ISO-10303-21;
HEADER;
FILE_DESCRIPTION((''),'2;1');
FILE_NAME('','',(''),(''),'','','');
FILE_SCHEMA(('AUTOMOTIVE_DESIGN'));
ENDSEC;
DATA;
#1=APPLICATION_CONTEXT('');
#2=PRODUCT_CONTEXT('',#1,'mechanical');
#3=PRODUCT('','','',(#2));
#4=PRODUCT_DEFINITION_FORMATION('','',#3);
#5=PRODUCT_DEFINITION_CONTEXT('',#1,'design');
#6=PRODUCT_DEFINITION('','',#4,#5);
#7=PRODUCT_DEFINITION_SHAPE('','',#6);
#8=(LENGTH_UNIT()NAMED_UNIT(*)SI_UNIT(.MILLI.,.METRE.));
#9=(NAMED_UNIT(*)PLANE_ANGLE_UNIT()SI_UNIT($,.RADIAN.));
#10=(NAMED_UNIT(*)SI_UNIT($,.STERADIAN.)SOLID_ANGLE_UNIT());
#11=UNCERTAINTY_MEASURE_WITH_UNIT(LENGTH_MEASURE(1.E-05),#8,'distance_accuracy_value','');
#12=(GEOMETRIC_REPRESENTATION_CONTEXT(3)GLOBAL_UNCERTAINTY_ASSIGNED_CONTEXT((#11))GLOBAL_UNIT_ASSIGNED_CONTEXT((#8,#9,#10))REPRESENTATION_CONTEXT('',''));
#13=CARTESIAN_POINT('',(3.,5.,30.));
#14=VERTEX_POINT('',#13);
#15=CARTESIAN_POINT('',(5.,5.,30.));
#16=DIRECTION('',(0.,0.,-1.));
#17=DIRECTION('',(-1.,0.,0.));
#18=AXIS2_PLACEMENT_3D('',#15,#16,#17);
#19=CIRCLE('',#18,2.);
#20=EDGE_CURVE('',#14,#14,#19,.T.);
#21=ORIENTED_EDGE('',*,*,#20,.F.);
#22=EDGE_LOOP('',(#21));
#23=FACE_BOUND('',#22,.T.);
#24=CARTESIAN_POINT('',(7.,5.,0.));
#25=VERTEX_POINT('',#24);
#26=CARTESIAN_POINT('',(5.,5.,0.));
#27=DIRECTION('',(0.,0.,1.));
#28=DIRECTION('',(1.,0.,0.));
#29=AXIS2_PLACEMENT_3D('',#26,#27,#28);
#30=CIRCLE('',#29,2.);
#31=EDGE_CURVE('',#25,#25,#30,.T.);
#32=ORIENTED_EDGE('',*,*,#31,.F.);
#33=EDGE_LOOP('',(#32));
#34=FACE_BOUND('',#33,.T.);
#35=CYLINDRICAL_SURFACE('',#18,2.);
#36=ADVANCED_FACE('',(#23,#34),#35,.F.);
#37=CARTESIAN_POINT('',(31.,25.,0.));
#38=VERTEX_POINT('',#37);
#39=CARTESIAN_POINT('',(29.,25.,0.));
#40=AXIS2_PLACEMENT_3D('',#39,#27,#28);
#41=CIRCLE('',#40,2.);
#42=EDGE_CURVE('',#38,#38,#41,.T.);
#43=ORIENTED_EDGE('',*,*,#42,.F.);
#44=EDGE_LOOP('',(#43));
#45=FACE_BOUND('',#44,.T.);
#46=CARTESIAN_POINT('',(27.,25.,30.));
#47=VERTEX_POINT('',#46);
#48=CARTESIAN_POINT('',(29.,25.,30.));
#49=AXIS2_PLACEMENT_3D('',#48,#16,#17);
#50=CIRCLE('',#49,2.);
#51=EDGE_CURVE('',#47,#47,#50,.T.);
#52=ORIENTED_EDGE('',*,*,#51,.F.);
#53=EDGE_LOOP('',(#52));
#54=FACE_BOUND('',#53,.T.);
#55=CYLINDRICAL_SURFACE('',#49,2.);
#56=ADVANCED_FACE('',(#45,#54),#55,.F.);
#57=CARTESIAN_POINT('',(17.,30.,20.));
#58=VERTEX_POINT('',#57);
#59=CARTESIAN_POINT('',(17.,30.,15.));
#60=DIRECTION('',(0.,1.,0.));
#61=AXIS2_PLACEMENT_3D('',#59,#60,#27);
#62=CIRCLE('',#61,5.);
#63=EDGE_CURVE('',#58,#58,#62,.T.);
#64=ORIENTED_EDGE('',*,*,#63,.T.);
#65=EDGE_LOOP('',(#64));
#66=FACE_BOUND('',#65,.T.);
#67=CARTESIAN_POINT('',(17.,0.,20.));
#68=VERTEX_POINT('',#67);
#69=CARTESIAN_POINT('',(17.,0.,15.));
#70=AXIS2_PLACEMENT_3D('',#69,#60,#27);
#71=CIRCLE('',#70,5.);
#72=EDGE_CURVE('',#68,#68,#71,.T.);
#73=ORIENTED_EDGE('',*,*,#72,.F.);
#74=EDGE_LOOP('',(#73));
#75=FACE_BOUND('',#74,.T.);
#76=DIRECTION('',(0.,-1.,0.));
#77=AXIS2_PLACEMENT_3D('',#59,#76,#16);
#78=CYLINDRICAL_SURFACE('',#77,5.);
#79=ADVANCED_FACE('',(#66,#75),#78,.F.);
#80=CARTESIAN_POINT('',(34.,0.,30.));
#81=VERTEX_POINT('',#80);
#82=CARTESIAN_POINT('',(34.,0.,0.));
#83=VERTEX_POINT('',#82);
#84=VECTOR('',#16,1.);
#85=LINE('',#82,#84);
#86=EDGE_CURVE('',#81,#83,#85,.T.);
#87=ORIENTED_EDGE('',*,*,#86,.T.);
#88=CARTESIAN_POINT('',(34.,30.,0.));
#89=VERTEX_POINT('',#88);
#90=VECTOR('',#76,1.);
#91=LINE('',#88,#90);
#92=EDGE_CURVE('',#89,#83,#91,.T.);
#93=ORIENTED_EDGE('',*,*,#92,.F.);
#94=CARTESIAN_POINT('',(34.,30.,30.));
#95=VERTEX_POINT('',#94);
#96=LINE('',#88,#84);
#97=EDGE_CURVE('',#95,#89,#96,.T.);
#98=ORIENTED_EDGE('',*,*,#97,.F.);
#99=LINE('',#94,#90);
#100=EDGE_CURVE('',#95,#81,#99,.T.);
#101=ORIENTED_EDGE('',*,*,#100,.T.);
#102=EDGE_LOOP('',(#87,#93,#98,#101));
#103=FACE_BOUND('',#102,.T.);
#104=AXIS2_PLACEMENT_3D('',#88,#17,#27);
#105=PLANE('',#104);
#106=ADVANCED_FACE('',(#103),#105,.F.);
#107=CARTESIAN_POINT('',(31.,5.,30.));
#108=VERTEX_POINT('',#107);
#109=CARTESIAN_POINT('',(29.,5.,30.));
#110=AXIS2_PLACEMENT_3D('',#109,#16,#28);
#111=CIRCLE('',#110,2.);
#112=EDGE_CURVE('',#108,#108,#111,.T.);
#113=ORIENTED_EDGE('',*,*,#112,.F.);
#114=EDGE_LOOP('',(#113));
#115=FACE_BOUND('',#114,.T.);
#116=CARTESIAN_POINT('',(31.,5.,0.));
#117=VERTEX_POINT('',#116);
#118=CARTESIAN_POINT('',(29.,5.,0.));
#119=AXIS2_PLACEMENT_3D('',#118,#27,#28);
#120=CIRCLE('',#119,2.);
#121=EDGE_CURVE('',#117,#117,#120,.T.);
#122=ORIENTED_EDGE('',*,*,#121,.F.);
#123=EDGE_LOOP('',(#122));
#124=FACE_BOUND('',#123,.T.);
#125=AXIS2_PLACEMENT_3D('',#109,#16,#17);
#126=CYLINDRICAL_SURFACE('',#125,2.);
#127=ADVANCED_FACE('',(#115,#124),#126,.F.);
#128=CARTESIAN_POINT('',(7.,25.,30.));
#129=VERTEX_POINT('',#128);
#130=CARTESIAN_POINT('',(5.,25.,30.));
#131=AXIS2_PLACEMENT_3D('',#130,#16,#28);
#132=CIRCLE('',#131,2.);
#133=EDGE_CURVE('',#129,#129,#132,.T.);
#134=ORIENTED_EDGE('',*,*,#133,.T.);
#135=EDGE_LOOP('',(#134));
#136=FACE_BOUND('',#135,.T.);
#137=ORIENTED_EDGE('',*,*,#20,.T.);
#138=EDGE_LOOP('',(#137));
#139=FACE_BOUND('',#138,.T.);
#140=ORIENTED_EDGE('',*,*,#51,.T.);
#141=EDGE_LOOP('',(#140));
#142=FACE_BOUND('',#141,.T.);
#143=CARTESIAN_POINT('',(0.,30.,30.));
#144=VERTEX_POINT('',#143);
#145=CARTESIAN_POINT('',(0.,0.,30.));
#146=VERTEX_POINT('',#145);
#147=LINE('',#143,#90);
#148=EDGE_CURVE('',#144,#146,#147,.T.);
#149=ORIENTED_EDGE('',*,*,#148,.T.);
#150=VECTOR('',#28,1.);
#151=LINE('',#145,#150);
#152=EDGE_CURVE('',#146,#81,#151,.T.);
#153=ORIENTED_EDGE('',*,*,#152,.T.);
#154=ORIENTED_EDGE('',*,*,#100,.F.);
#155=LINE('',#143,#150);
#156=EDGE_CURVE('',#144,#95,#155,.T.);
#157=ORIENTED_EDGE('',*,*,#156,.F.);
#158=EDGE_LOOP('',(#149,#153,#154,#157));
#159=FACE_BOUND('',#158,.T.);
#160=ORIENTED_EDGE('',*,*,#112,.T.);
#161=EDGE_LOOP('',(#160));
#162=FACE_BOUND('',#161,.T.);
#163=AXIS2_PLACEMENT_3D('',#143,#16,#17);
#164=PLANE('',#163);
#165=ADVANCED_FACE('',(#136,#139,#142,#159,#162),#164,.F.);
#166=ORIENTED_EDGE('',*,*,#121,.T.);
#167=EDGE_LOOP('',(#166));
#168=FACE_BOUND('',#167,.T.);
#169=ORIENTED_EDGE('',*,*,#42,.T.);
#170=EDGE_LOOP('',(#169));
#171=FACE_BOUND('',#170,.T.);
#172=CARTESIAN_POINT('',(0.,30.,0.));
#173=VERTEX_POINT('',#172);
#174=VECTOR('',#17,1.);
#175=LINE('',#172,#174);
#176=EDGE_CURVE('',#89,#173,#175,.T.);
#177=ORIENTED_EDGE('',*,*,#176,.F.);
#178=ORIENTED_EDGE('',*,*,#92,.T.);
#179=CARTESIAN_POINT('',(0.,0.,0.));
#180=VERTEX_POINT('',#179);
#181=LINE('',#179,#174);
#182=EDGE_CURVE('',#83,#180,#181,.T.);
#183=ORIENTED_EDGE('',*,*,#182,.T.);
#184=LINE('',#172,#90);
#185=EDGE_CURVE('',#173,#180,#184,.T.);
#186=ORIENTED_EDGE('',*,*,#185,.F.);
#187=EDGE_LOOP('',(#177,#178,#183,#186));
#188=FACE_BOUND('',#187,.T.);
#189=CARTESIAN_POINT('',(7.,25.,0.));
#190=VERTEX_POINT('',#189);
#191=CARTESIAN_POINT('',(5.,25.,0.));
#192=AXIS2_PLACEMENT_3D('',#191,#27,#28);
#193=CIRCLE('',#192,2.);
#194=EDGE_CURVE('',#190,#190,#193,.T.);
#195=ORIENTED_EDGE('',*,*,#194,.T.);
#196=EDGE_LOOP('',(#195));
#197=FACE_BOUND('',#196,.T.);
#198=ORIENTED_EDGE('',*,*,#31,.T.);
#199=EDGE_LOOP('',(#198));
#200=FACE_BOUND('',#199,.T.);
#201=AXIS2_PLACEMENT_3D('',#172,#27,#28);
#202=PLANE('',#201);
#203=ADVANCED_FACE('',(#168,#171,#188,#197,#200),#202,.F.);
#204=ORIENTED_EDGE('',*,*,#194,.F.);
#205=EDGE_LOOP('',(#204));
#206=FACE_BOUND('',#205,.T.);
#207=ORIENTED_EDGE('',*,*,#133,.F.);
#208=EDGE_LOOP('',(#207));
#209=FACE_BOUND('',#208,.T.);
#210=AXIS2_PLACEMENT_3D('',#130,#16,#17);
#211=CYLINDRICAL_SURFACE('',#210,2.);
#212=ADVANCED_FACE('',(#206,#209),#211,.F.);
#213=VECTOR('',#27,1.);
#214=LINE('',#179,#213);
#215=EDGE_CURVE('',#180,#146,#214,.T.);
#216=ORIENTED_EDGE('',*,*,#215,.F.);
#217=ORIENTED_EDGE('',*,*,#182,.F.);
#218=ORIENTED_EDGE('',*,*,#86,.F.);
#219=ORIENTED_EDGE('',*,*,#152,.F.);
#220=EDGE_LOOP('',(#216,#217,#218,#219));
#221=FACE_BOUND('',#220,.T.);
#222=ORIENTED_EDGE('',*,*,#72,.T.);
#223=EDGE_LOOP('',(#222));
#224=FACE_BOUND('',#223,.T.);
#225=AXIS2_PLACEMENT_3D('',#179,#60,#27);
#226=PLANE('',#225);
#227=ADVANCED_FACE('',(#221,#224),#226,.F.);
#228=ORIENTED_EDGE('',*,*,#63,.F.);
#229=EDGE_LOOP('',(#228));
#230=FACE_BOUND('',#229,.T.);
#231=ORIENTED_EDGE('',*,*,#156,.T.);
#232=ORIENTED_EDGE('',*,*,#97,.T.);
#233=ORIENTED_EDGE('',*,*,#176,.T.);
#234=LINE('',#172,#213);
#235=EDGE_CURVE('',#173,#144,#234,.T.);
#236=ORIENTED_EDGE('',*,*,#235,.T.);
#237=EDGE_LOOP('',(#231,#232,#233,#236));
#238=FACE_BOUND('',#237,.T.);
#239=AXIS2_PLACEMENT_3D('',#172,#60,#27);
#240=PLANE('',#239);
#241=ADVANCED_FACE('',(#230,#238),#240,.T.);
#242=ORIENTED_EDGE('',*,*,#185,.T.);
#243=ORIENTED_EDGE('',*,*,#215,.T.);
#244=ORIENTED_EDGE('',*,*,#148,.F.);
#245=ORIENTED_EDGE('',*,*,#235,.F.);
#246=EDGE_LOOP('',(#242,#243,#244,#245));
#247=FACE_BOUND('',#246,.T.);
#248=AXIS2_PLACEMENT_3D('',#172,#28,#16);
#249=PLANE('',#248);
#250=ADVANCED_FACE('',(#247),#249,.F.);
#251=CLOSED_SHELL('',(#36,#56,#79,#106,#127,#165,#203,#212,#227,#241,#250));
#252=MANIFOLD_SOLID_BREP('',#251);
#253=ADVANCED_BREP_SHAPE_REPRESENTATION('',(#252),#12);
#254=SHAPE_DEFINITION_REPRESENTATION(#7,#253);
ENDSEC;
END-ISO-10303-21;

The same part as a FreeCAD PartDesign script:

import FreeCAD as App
import Part
import Sketcher

doc = App.newDocument("Part")
body = doc.addObject("PartDesign::Body", "Body")

# Sketch on XZ plane
sketch1 = body.newObject("Sketcher::SketchObject", "Sketch")
sketch1.AttachmentSupport = (doc.getObject("XZ_Plane"), [""])
sketch1.MapMode = "FlatFace"
sketch1.addGeometry([
    Part.LineSegment(App.Vector(0, 0, 0), App.Vector(0, 30, 0)),  # 0
    Part.LineSegment(App.Vector(0, 30, 0), App.Vector(34, 30, 0)),  # 1
    Part.LineSegment(App.Vector(34, 30, 0), App.Vector(34, 0, 0)),  # 2
    Part.LineSegment(App.Vector(34, 0, 0), App.Vector(0, 0, 0)),  # 3
    Part.Circle(App.Vector(17, 15, 0), App.Vector(0, 0, 1), 5),  # 4
], False)
sketch1.addConstraint([
    Sketcher.Constraint("Coincident", 0, 2, 1, 1),
    Sketcher.Constraint("Coincident", 1, 2, 2, 1),
    Sketcher.Constraint("Coincident", 2, 2, 3, 1),
    Sketcher.Constraint("Coincident", 3, 2, 0, 1),
    Sketcher.Constraint("Vertical", 0),
    Sketcher.Constraint("Horizontal", 1),
    Sketcher.Constraint("Vertical", 2),
    Sketcher.Constraint("Horizontal", 3),
    Sketcher.Constraint("Coincident", 3, 2, -1, 1),
    Sketcher.Constraint("Diameter", 4, 10.0),
    Sketcher.Constraint("DistanceX", 1, 1, 1, 2, 34.0),
    Sketcher.Constraint("DistanceY", 0, 1, 0, 2, 30.0),
    Sketcher.Constraint("DistanceX", -1, 1, 4, 3, 17.0),
    Sketcher.Constraint("DistanceY", -1, 1, 4, 3, 15.0),
])
pad1 = body.newObject("PartDesign::Pad", "Pad")
pad1.Profile = sketch1
pad1.Length = 30
pad1.Reversed = True

# Sketch on XY plane
sketch2 = body.newObject("Sketcher::SketchObject", "Sketch001")
sketch2.AttachmentSupport = (doc.getObject("XY_Plane"), [""])
sketch2.MapMode = "FlatFace"
sketch2.addGeometry([
    Part.Circle(App.Vector(29, 25, 0), App.Vector(0, 0, 1), 2),
    Part.Circle(App.Vector(5, 25, 0), App.Vector(0, 0, 1), 2),
    Part.Circle(App.Vector(5, 5, 0), App.Vector(0, 0, 1), 2),
    Part.Circle(App.Vector(29, 5, 0), App.Vector(0, 0, 1), 2),
], False)
sketch2.addConstraint([
    Sketcher.Constraint("Equal", 0, 1),
    Sketcher.Constraint("Equal", 1, 2),
    Sketcher.Constraint("Equal", 2, 3),
    Sketcher.Constraint("Horizontal", 0, 3, 1, 3),
    Sketcher.Constraint("Horizontal", 2, 3, 3, 3),
    Sketcher.Constraint("Vertical", 1, 3, 2, 3),
    Sketcher.Constraint("Vertical", 0, 3, 3, 3),
    Sketcher.Constraint("Diameter", 0, 4.0),
    Sketcher.Constraint("DistanceX", -1, 1, 0, 3, 29.0),
    Sketcher.Constraint("DistanceY", -1, 1, 0, 3, 25.0),
    Sketcher.Constraint("DistanceX", -1, 1, 1, 3, 5.0),
    Sketcher.Constraint("DistanceY", -1, 1, 2, 3, 5.0),
])
pocket1 = body.newObject("PartDesign::Pocket", "Pocket")
pocket1.Profile = sketch2
pocket1.Type = "ThroughAll"
pocket1.Midplane = True

doc.recompute()
